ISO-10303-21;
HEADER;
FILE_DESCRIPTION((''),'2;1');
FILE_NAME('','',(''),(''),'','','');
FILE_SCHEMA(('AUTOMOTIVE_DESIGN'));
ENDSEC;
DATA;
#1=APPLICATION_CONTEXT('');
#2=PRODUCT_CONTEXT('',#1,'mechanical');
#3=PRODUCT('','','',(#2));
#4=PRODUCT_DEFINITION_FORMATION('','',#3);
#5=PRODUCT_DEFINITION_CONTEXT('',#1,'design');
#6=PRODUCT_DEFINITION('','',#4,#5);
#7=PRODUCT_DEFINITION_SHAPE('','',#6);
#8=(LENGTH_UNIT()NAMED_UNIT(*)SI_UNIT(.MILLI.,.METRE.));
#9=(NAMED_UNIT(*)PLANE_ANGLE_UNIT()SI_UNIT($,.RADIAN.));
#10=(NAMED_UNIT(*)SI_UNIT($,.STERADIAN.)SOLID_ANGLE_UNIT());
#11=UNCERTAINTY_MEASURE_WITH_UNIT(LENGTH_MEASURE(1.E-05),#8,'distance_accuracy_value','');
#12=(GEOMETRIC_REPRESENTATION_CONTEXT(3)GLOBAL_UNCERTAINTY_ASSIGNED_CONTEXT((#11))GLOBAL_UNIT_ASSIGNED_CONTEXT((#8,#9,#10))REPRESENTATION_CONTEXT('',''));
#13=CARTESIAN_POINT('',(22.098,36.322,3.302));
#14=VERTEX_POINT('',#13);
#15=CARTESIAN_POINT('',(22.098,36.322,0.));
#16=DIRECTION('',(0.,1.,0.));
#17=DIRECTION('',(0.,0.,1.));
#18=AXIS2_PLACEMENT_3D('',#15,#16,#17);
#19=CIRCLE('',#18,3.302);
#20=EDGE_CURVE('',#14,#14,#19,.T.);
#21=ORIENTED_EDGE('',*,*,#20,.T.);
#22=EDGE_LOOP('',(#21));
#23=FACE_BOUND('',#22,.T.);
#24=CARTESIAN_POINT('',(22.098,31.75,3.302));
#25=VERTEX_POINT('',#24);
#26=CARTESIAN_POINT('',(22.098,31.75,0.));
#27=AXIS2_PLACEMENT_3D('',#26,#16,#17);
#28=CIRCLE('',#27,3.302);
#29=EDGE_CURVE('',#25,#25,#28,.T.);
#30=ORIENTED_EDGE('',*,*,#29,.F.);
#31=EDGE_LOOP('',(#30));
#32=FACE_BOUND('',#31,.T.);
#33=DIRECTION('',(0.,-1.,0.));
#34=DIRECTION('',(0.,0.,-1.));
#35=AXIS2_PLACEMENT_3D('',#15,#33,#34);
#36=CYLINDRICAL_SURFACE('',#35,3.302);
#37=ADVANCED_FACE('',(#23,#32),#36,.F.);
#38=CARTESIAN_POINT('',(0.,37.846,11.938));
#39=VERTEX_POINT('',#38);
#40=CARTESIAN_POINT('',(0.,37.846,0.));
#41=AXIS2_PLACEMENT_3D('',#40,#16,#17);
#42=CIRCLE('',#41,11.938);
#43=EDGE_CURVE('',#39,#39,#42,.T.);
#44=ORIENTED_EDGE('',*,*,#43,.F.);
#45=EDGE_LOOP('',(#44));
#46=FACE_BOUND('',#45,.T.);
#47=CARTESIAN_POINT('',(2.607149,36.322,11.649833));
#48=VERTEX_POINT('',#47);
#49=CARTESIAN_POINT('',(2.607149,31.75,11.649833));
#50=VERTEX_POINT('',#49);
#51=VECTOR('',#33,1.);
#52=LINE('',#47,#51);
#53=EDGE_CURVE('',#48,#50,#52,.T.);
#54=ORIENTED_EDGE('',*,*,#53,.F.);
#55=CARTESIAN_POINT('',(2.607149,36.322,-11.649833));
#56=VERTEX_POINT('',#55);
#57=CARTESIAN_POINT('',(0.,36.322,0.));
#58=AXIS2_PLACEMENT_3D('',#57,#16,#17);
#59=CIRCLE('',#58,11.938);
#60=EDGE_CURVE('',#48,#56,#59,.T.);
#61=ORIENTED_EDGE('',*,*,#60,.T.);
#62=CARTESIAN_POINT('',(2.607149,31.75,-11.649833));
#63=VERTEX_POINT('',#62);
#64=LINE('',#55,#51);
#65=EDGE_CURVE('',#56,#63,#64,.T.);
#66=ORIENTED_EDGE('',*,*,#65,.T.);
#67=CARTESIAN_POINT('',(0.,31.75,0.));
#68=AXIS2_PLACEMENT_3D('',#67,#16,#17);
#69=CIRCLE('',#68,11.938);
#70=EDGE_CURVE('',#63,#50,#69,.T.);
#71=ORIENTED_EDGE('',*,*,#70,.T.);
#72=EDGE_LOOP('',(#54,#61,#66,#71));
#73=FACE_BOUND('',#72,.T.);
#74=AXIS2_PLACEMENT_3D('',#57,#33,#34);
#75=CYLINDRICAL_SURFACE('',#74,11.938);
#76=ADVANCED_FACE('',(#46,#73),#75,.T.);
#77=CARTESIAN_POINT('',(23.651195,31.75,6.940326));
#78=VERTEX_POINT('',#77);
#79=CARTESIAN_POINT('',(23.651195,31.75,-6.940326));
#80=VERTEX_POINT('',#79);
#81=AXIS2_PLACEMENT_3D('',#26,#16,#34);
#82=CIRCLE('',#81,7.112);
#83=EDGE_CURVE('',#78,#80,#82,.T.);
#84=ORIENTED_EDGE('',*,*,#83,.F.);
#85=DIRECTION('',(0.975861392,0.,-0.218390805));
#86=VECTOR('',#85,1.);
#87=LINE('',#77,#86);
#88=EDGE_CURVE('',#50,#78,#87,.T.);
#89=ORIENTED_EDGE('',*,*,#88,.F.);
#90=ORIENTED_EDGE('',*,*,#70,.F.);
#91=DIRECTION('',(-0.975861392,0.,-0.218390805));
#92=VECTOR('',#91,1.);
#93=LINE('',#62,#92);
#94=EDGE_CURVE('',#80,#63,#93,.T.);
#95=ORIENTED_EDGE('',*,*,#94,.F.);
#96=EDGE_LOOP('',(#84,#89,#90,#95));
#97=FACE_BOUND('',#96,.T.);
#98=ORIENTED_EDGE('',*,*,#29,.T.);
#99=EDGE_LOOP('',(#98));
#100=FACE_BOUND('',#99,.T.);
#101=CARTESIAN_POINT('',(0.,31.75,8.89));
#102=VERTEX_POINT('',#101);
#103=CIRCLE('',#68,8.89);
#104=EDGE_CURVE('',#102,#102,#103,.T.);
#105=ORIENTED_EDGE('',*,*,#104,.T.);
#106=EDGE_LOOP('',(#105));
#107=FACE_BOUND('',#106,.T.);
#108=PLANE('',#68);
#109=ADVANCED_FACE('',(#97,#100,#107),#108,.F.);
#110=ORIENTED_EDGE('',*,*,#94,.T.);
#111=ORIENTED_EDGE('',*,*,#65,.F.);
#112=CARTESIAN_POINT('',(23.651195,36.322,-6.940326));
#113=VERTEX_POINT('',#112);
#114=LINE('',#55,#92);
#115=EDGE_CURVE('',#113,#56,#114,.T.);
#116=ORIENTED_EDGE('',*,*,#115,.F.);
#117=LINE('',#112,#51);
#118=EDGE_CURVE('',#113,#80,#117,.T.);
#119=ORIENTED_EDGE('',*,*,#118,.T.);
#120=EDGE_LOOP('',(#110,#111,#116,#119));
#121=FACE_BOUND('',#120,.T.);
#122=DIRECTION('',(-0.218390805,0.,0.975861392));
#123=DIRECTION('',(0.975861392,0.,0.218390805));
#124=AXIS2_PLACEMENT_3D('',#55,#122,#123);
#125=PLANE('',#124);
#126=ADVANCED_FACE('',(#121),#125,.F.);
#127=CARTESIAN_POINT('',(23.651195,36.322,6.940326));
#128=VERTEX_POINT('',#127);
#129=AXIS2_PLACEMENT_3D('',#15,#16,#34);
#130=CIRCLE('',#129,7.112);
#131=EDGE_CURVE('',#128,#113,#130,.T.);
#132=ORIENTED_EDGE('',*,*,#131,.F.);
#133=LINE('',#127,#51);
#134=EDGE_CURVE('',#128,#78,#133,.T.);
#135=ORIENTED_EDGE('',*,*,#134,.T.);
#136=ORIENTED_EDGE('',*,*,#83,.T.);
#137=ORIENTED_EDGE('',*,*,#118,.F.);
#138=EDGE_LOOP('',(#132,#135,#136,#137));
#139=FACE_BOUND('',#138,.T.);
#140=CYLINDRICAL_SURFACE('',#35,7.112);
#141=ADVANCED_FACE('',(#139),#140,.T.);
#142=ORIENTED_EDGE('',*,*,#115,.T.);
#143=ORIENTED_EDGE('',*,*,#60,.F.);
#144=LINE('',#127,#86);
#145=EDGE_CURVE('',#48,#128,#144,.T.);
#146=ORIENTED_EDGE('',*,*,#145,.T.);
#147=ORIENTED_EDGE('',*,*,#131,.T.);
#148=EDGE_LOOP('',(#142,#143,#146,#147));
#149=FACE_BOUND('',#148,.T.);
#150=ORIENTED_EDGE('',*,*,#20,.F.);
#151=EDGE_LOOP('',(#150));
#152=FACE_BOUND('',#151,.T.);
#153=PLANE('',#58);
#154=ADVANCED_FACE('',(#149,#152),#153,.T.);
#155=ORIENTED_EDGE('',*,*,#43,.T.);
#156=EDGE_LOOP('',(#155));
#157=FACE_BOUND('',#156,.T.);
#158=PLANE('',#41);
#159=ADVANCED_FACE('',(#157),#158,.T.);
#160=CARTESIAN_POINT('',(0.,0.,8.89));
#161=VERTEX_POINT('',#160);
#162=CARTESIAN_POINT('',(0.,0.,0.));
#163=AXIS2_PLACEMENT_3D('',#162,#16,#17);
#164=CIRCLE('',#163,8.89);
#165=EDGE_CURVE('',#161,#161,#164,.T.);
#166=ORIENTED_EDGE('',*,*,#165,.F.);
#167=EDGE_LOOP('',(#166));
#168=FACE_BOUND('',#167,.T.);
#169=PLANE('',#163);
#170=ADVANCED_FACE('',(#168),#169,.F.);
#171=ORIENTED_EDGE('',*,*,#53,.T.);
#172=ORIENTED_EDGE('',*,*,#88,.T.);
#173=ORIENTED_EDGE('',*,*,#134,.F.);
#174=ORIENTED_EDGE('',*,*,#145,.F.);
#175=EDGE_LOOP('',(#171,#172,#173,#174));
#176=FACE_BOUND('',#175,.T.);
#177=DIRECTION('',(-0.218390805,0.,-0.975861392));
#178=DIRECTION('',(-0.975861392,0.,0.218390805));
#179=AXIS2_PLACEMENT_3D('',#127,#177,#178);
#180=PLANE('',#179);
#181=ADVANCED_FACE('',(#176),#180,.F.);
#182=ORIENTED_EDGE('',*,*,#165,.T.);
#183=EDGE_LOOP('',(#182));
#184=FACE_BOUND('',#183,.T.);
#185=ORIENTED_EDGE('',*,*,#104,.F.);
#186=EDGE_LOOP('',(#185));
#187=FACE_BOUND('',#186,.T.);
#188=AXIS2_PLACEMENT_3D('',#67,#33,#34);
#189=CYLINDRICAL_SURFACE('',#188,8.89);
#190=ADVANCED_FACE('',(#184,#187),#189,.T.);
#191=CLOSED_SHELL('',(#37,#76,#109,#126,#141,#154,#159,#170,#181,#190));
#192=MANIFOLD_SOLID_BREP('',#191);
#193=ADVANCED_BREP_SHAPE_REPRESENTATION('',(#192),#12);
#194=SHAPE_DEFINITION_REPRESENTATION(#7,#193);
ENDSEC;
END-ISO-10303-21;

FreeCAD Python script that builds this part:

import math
import FreeCAD as App
import Part
import Sketcher
Q = App.Units.Quantity

doc = App.newDocument("Part")
body = doc.addObject("PartDesign::Body", "Body")

sketch1 = body.newObject("Sketcher::SketchObject", "Sketch")
sketch1.AttachmentSupport = (doc.getObject("XZ_Plane"), [""])
sketch1.MapMode = "FlatFace"
sketch1.addGeometry(Part.Circle(App.Vector(0, 0, 0), App.Vector(0, 0, 1), 9), False)
sketch1.addConstraint([
    Sketcher.Constraint("Coincident", 0, 3, -1, 1),
    Sketcher.Constraint("Diameter", 0, Q("0.7 in")),
])
pad1 = body.newObject("PartDesign::Pad", "Pad")
pad1.Profile = sketch1
pad1.Length = Q("1.25 in")
pad1.Reversed = True

sketch2 = body.newObject("Sketcher::SketchObject", "Sketch001")
sketch2.AttachmentSupport = (doc.getObject("XZ_Plane"), [""])
sketch2.MapMode = "FlatFace"
sketch2.AttachmentOffset = App.Placement(App.Vector(0, 0, -1.25 * 25.4), App.Rotation())
sketch2.addGeometry([
    Part.LineSegment(App.Vector(23.7, -6.9, 0), App.Vector(2.6, -11.6, 0)),
    Part.ArcOfCircle(Part.Circle(App.Vector(0, 0, 0), App.Vector(0, 0, 1), 11.9), math.radians(77), math.radians(283)),
    Part.LineSegment(App.Vector(2.6, 11.6, 0), App.Vector(23.7, 6.9, 0)),
    Part.ArcOfCircle(Part.Circle(App.Vector(22.1, 0, 0), App.Vector(0, 0, 1), 7.1), math.radians(-77), math.radians(77)),
    Part.Circle(App.Vector(22.1, 0, 0), App.Vector(0, 0, 1), 3.3),
], False)
sketch2.addConstraint([
    Sketcher.Constraint("Tangent", 0, 2, 1, 2),
    Sketcher.Constraint("Tangent", 1, 1, 2, 1),
    Sketcher.Constraint("Tangent", 2, 2, 3, 2),
    Sketcher.Constraint("Tangent", 3, 1, 0, 1),
    Sketcher.Constraint("Coincident", 1, 3, -1, 1),
    Sketcher.Constraint("Coincident", 4, 3, 3, 3),
    Sketcher.Constraint("PointOnObject", 3, 3, -1),
    Sketcher.Constraint("Diameter", 4, Q("0.26 in")),
    Sketcher.Constraint("Radius", 1, Q("0.47 in")),
    Sketcher.Constraint("Radius", 3, Q("0.28 in")),
    Sketcher.Constraint("DistanceX", -1, 1, 3, 3, Q("0.87 in")),
])
pad2 = body.newObject("PartDesign::Pad", "Pad001")
pad2.Profile = sketch2
pad2.Length = Q("0.18 in")
pad2.Reversed = True

sketch3 = body.newObject("Sketcher::SketchObject", "Sketch002")
sketch3.AttachmentSupport = (doc.getObject("XZ_Plane"), [""])
sketch3.MapMode = "FlatFace"
sketch3.AttachmentOffset = App.Placement(App.Vector(0, 0, -1.43 * 25.4), App.Rotation())
sketch3.addGeometry(Part.Circle(App.Vector(0, 0, 0), App.Vector(0, 0, 1), 12), False)
sketch3.addConstraint([
    Sketcher.Constraint("Coincident", 0, 3, -1, 1),
    Sketcher.Constraint("Diameter", 0, Q("0.94 in")),
])
pad3 = body.newObject("PartDesign::Pad", "Pad002")
pad3.Profile = sketch3
pad3.Length = Q("0.06 in")
pad3.Reversed = True

doc.recompute()
